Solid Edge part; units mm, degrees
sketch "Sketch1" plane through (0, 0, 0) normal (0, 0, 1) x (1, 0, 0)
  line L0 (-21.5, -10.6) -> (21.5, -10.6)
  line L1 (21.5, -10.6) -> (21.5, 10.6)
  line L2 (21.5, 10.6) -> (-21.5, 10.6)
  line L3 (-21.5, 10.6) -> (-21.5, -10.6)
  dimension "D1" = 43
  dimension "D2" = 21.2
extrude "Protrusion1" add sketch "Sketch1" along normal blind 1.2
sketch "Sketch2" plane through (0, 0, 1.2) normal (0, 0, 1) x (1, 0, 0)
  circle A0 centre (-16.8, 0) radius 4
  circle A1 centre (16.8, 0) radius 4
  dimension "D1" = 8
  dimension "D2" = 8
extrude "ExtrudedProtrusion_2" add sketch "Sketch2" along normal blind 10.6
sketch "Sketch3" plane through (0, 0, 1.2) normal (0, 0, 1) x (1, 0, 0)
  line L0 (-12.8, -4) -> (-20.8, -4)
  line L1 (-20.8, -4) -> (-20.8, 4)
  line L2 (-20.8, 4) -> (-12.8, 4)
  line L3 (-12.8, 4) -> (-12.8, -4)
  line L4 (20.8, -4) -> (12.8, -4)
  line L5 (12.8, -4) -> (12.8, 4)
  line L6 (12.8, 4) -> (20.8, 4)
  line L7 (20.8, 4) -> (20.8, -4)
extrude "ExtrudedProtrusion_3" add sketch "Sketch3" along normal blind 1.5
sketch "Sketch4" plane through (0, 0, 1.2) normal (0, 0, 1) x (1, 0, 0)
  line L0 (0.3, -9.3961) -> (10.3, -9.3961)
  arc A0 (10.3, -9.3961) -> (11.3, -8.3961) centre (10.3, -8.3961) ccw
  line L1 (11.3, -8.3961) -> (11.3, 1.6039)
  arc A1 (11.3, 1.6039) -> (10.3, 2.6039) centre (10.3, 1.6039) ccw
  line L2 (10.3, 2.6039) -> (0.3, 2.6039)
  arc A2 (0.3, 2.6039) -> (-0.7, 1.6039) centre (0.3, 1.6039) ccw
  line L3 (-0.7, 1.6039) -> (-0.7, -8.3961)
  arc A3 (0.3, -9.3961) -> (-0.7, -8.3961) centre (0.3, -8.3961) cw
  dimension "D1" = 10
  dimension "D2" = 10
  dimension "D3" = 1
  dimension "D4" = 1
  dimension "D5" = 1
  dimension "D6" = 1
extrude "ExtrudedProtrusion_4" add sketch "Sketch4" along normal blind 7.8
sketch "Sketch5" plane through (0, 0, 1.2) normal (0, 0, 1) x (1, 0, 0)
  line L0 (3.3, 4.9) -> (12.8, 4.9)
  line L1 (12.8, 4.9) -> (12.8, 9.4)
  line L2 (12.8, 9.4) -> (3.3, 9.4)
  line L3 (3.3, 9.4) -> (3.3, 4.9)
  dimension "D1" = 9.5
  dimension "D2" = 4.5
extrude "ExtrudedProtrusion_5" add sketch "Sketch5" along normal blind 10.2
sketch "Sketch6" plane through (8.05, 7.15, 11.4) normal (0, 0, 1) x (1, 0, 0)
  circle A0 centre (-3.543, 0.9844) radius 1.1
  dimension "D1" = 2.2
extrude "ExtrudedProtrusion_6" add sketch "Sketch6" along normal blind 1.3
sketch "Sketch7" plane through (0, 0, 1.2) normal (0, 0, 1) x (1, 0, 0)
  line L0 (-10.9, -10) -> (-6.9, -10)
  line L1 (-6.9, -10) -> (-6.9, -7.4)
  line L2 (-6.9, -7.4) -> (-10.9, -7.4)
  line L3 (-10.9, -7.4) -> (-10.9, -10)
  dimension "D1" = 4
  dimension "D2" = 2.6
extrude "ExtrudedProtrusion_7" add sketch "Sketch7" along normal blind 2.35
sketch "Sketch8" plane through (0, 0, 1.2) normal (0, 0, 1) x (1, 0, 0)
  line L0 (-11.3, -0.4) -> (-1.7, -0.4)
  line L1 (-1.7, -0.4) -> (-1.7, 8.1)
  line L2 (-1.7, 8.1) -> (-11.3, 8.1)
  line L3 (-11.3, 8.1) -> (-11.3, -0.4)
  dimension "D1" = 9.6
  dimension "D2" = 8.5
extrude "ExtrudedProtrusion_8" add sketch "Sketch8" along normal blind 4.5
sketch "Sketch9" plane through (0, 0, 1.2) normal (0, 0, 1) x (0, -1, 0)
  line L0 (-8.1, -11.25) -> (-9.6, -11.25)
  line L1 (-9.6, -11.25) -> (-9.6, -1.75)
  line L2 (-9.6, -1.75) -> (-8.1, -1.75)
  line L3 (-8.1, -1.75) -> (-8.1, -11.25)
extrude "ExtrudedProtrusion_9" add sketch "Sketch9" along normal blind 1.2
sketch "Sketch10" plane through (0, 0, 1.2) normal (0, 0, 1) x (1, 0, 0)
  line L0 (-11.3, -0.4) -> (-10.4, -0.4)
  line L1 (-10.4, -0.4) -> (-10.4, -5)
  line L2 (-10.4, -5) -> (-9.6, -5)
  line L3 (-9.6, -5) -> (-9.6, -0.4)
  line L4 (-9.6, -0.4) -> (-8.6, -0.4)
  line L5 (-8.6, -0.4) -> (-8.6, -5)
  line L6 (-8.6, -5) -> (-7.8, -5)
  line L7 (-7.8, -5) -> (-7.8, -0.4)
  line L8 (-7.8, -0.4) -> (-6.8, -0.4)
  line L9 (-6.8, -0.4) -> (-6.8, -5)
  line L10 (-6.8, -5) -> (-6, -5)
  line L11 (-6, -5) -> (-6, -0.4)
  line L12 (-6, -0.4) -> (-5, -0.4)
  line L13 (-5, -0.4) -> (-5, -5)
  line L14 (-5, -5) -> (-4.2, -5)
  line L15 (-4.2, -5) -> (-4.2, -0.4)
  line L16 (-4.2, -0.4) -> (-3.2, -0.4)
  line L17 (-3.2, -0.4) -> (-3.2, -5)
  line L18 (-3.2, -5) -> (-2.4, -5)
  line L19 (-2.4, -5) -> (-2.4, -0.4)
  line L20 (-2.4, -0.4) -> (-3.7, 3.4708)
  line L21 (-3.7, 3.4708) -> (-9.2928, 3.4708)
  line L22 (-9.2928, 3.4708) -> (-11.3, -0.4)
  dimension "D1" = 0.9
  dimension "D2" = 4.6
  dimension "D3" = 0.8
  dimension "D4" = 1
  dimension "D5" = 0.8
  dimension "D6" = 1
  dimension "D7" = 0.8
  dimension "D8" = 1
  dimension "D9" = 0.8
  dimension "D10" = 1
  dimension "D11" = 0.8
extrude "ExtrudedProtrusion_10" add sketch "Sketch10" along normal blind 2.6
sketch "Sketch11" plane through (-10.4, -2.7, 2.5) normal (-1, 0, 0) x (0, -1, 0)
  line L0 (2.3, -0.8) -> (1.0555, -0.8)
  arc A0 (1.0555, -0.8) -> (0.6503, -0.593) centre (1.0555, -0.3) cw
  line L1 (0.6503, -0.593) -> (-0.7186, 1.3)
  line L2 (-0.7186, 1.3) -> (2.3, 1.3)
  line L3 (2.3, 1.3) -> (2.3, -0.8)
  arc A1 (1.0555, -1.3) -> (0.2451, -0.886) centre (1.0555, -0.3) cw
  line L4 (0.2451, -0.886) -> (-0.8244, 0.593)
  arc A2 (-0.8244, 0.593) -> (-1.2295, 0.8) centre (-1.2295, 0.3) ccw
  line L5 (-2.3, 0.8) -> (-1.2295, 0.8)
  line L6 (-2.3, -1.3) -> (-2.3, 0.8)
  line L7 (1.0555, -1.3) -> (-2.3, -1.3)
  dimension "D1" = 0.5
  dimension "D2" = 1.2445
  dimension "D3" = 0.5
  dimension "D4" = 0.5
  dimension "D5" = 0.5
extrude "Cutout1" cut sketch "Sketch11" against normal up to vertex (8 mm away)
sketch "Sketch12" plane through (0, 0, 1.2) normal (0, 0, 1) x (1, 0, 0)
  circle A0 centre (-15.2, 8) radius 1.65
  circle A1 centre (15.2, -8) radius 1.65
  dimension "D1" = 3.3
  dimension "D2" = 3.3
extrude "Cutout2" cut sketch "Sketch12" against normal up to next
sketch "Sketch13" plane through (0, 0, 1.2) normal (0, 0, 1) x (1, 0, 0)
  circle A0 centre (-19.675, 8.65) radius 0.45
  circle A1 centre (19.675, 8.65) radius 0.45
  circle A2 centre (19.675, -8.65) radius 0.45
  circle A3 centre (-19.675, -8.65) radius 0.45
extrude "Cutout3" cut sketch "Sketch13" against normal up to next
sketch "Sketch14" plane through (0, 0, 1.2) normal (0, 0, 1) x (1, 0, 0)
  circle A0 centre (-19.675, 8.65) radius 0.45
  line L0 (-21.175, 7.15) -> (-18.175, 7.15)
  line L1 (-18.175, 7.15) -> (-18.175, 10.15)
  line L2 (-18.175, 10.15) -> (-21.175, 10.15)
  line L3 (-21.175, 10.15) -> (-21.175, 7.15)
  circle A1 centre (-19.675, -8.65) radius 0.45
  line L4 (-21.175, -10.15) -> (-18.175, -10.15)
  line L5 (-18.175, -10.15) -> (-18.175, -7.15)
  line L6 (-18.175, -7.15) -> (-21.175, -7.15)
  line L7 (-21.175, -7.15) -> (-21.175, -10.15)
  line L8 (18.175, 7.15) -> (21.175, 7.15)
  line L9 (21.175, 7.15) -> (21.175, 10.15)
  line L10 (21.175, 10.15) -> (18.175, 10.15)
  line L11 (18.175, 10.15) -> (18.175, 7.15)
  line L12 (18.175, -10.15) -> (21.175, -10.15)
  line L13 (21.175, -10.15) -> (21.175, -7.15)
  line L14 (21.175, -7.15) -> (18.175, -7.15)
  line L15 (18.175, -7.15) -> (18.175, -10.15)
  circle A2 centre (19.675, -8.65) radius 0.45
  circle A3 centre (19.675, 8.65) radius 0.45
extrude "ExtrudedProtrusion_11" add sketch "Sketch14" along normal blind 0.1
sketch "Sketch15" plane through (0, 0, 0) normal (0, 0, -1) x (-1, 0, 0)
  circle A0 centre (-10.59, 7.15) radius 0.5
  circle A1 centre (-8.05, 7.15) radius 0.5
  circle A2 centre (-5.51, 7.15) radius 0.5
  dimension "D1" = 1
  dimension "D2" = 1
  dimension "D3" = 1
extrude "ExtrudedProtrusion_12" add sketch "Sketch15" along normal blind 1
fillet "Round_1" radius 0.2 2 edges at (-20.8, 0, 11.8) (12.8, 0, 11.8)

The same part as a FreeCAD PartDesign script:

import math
import FreeCAD as App
import Part
import Sketcher

V = App.Vector
Q = App.Units.Quantity


def edges_at(feature, points):
    """Names of the edges that pass closest to the given points."""
    edges = feature.Shape.Edges
    near = lambda p: min(range(len(edges)), key=lambda i: edges[i].distToShape(Part.Vertex(*p))[0])
    return sorted({f"Edge{near(p) + 1}" for p in points})


def add_polygon(sketch, points):
    """Adds a closed chain of lines whose ends are joined by coincident constraints."""
    first, n = sketch.GeometryCount, len(points)
    for a, b in zip(points, points[1:] + points[:1]):
        sketch.addGeometry(Part.LineSegment(App.Vector(*a, 0), App.Vector(*b, 0)), False)
    for i in range(n):
        sketch.addConstraint(Sketcher.Constraint("Coincident", first + i, 2, first + (i + 1) % n, 1))

doc = App.newDocument("Part")
body = doc.addObject("PartDesign::Body", "Body")

sketch1 = body.newObject("Sketcher::SketchObject", "Sketch")
sketch1.AttachmentSupport = (doc.getObject("XY_Plane"), [""])
sketch1.MapMode = "FlatFace"
add_polygon(sketch1, [(-22, 11), (-22, -11), (22, -11), (22, 11)])
sketch1.addConstraint(Sketcher.Constraint("Vertical", 0))
sketch1.addConstraint(Sketcher.Constraint("Horizontal", 1))
sketch1.addConstraint(Sketcher.Constraint("Vertical", 2))
sketch1.addConstraint(Sketcher.Constraint("Horizontal", 3))
sketch1.addConstraint(Sketcher.Constraint("Symmetric", 0, 2, 2, 2, -1, 1))
sketch1.addConstraint(Sketcher.Constraint("DistanceX", 1, 1, 1, 2, Q("43 mm")))
sketch1.addConstraint(Sketcher.Constraint("DistanceY", 0, 2, 0, 1, Q("21.2 mm")))
pad1 = body.newObject("PartDesign::Pad", "Pad")
pad1.Profile = sketch1
pad1.Length = 1.2

sketch2 = body.newObject("Sketcher::SketchObject", "Sketch001")
sketch2.AttachmentSupport = (doc.getObject("XY_Plane"), [""])
sketch2.MapMode = "FlatFace"
sketch2.AttachmentOffset = App.Placement(V(0, 0, 1.2), App.Rotation())
sketch2.addGeometry(Part.Circle(V(-16.8, 0, 0), V(0, 0, 1), 4), False)
sketch2.addGeometry(Part.Circle(V(16.8, 0, 0), V(0, 0, 1), 4), False)
sketch2.addConstraint(Sketcher.Constraint("Equal", 0, 1))
sketch2.addConstraint(Sketcher.Constraint("Symmetric", 0, 3, 1, 3, -1, 1))
sketch2.addConstraint(Sketcher.Constraint("PointOnObject", 0, 3, -1))
sketch2.addConstraint(Sketcher.Constraint("Diameter", 0, Q("8 mm")))
sketch2.addConstraint(Sketcher.Constraint("DistanceX", 0, 3, -1, 1, Q("16.8 mm")))
pad2 = body.newObject("PartDesign::Pad", "Pad001")
pad2.Profile = sketch2
pad2.Length = 10.6

sketch3 = body.newObject("Sketcher::SketchObject", "Sketch002")
sketch3.AttachmentSupport = (doc.getObject("XY_Plane"), [""])
sketch3.MapMode = "FlatFace"
sketch3.AttachmentOffset = App.Placement(V(0, 0, 1.2), App.Rotation())
add_polygon(sketch3, [(-21, -4), (-13, -4), (-13, 4), (-21, 4)])
add_polygon(sketch3, [(13, -4), (21, -4), (21, 4), (13, 4)])
sketch3.addConstraint(Sketcher.Constraint("Horizontal", 0))
sketch3.addConstraint(Sketcher.Constraint("Vertical", 1))
sketch3.addConstraint(Sketcher.Constraint("Horizontal", 2))
sketch3.addConstraint(Sketcher.Constraint("Vertical", 3))
sketch3.addConstraint(Sketcher.Constraint("Horizontal", 4))
sketch3.addConstraint(Sketcher.Constraint("Vertical", 5))
sketch3.addConstraint(Sketcher.Constraint("Horizontal", 6))
sketch3.addConstraint(Sketcher.Constraint("Vertical", 7))
sketch3.addConstraint(Sketcher.Constraint("Symmetric", 2, 2, 4, 2, -1, 1))
sketch3.addConstraint(Sketcher.Constraint("Symmetric", 0, 2, 6, 2, -1, 1))
sketch3.addConstraint(Sketcher.Constraint("Horizontal", 3, 2, 4, 2))
sketch3.addConstraint(Sketcher.Constraint("Equal", 6, 1))
sketch3.addConstraint(Sketcher.Constraint("DistanceX", 0, 1, 0, 2, Q("8 mm")))
sketch3.addConstraint(Sketcher.Constraint("DistanceX", 0, 2, -1, 1, Q("12.8 mm")))
pad3 = body.newObject("PartDesign::Pad", "Pad002")
pad3.Profile = sketch3
pad3.Length = 1.5

sketch4 = body.newObject("Sketcher::SketchObject", "Sketch003")
sketch4.AttachmentSupport = (doc.getObject("XY_Plane"), [""])
sketch4.MapMode = "FlatFace"
sketch4.AttachmentOffset = App.Placement(V(0, 0, 1.2), App.Rotation())
sketch4.addGeometry(Part.ArcOfCircle(Part.Circle(V(0.3, -8.4, 0), V(0, 0, 1), 1), math.radians(180), math.radians(270)), False)
sketch4.addGeometry(Part.LineSegment(V(0.3, -9.4, 0), V(10.3, -9.4, 0)), False)
sketch4.addGeometry(Part.ArcOfCircle(Part.Circle(V(10.3, -8.4, 0), V(0, 0, 1), 1), math.radians(-90), math.radians(0)), False)
sketch4.addGeometry(Part.LineSegment(V(11.3, -8.4, 0), V(11.3, 1.6, 0)), False)
sketch4.addGeometry(Part.ArcOfCircle(Part.Circle(V(10.3, 1.6, 0), V(0, 0, 1), 1), math.radians(0), math.radians(90)), False)
sketch4.addGeometry(Part.LineSegment(V(10.3, 2.6, 0), V(0.3, 2.6, 0)), False)
sketch4.addGeometry(Part.ArcOfCircle(Part.Circle(V(0.3, 1.6, 0), V(0, 0, 1), 1), math.radians(90), math.radians(180)), False)
sketch4.addGeometry(Part.LineSegment(V(-0.7, 1.6, 0), V(-0.7, -8.4, 0)), False)
sketch4.addConstraint(Sketcher.Constraint("Tangent", 0, 2, 1, 1))
sketch4.addConstraint(Sketcher.Constraint("Tangent", 1, 2, 2, 1))
sketch4.addConstraint(Sketcher.Constraint("Tangent", 2, 2, 3, 1))
sketch4.addConstraint(Sketcher.Constraint("Tangent", 3, 2, 4, 1))
sketch4.addConstraint(Sketcher.Constraint("Tangent", 4, 2, 5, 1))
sketch4.addConstraint(Sketcher.Constraint("Tangent", 5, 2, 6, 1))
sketch4.addConstraint(Sketcher.Constraint("Tangent", 6, 2, 7, 1))
sketch4.addConstraint(Sketcher.Constraint("Tangent", 7, 2, 0, 1))
sketch4.addConstraint(Sketcher.Constraint("Horizontal", 1))
sketch4.addConstraint(Sketcher.Constraint("Vertical", 3))
sketch4.addConstraint(Sketcher.Constraint("Horizontal", 5))
sketch4.addConstraint(Sketcher.Constraint("Vertical", 7))
sketch4.addConstraint(Sketcher.Constraint("Equal", 0, 2))
sketch4.addConstraint(Sketcher.Constraint("Equal", 2, 4))
sketch4.addConstraint(Sketcher.Constraint("Equal", 4, 6))
sketch4.addConstraint(Sketcher.Constraint("Equal", 5, 3))
sketch4.addConstraint(Sketcher.Constraint("Radius", 0, Q("1 mm")))
sketch4.addConstraint(Sketcher.Constraint("DistanceX", 1, 1, 1, 2, Q("10 mm")))
sketch4.addConstraint(Sketcher.Constraint("DistanceX", -1, 1, 0, 3, Q("0.3 mm")))
sketch4.addConstraint(Sketcher.Constraint("DistanceY", 0, 3, -1, 1, Q("8.396 mm")))
pad4 = body.newObject("PartDesign::Pad", "Pad003")
pad4.Profile = sketch4
pad4.Length = 7.8

sketch5 = body.newObject("Sketcher::SketchObject", "Sketch004")
sketch5.AttachmentSupport = (doc.getObject("XY_Plane"), [""])
sketch5.MapMode = "FlatFace"
sketch5.AttachmentOffset = App.Placement(V(0, 0, 1.2), App.Rotation())
add_polygon(sketch5, [(3.3, 9.4), (3.3, 4.9), (12.8, 4.9), (12.8, 9.4)])
sketch5.addConstraint(Sketcher.Constraint("Vertical", 0))
sketch5.addConstraint(Sketcher.Constraint("Horizontal", 1))
sketch5.addConstraint(Sketcher.Constraint("Vertical", 2))
sketch5.addConstraint(Sketcher.Constraint("Horizontal", 3))
sketch5.addConstraint(Sketcher.Constraint("DistanceX", 1, 1, 1, 2, Q("9.5 mm")))
sketch5.addConstraint(Sketcher.Constraint("DistanceY", 0, 2, 0, 1, Q("4.5 mm")))
sketch5.addConstraint(Sketcher.Constraint("DistanceX", -1, 1, 0, 2, Q("3.3 mm")))
sketch5.addConstraint(Sketcher.Constraint("DistanceY", -1, 1, 0, 2, Q("4.9 mm")))
pad5 = body.newObject("PartDesign::Pad", "Pad004")
pad5.Profile = sketch5
pad5.Length = 10.2

sketch6 = body.newObject("Sketcher::SketchObject", "Sketch005")
sketch6.AttachmentSupport = (doc.getObject("XY_Plane"), [""])
sketch6.MapMode = "FlatFace"
sketch6.AttachmentOffset = App.Placement(V(0, 0, 11.4), App.Rotation())
sketch6.addGeometry(Part.Circle(V(4.5, 8.1, 0), V(0, 0, 1), 1.1), False)
sketch6.addConstraint(Sketcher.Constraint("Diameter", 0, Q("2.2 mm")))
sketch6.addConstraint(Sketcher.Constraint("DistanceX", -1, 1, 0, 3, Q("4.507 mm")))
sketch6.addConstraint(Sketcher.Constraint("DistanceY", -1, 1, 0, 3, Q("8.1344 mm")))
pad6 = body.newObject("PartDesign::Pad", "Pad005")
pad6.Profile = sketch6
pad6.Length = 1.3

sketch7 = body.newObject("Sketcher::SketchObject", "Sketch006")
sketch7.AttachmentSupport = (doc.getObject("XY_Plane"), [""])
sketch7.MapMode = "FlatFace"
sketch7.AttachmentOffset = App.Placement(V(0, 0, 1.2), App.Rotation())
add_polygon(sketch7, [(-10.9, -7.4), (-10.9, -10), (-6.9, -10), (-6.9, -7.4)])
sketch7.addConstraint(Sketcher.Constraint("Vertical", 0))
sketch7.addConstraint(Sketcher.Constraint("Horizontal", 1))
sketch7.addConstraint(Sketcher.Constraint("Vertical", 2))
sketch7.addConstraint(Sketcher.Constraint("Horizontal", 3))
sketch7.addConstraint(Sketcher.Constraint("DistanceX", 1, 1, 1, 2, Q("4 mm")))
sketch7.addConstraint(Sketcher.Constraint("DistanceY", 0, 2, 0, 1, Q("2.6 mm")))
sketch7.addConstraint(Sketcher.Constraint("DistanceY", 0, 2, -1, 1, Q("10 mm")))
sketch7.addConstraint(Sketcher.Constraint("DistanceX", 0, 2, -1, 1, Q("10.9 mm")))
pad7 = body.newObject("PartDesign::Pad", "Pad006")
pad7.Profile = sketch7
pad7.Length = 2.35

sketch8 = body.newObject("Sketcher::SketchObject", "Sketch007")
sketch8.AttachmentSupport = (doc.getObject("XY_Plane"), [""])
sketch8.MapMode = "FlatFace"
sketch8.AttachmentOffset = App.Placement(V(0, 0, 1.2), App.Rotation())
add_polygon(sketch8, [(-11, 8), (-11, 0), (-2, 0), (-2, 8)])
sketch8.addConstraint(Sketcher.Constraint("Vertical", 0))
sketch8.addConstraint(Sketcher.Constraint("Horizontal", 1))
sketch8.addConstraint(Sketcher.Constraint("Vertical", 2))
sketch8.addConstraint(Sketcher.Constraint("Horizontal", 3))
sketch8.addConstraint(Sketcher.Constraint("DistanceX", 1, 1, 1, 2, Q("9.6 mm")))
sketch8.addConstraint(Sketcher.Constraint("DistanceY", 0, 2, 0, 1, Q("8.5 mm")))
sketch8.addConstraint(Sketcher.Constraint("DistanceX", 0, 2, -1, 1, Q("11.3 mm")))
sketch8.addConstraint(Sketcher.Constraint("DistanceY", 0, 2, -1, 1, Q("0.4 mm")))
pad8 = body.newObject("PartDesign::Pad", "Pad007")
pad8.Profile = sketch8
pad8.Length = 4.5

sketch9 = body.newObject("Sketcher::SketchObject", "Sketch008")
sketch9.AttachmentSupport = (doc.getObject("XY_Plane"), [""])
sketch9.MapMode = "FlatFace"
sketch9.AttachmentOffset = App.Placement(V(0, 0, 1.2), App.Rotation())
add_polygon(sketch9, [(-11.2, 9.6), (-11.2, 8.1), (-1.8, 8.1), (-1.8, 9.6)])
sketch9.addConstraint(Sketcher.Constraint("Vertical", 0))
sketch9.addConstraint(Sketcher.Constraint("Horizontal", 1))
sketch9.addConstraint(Sketcher.Constraint("Vertical", 2))
sketch9.addConstraint(Sketcher.Constraint("Horizontal", 3))
sketch9.addConstraint(Sketcher.Constraint("DistanceX", 1, 1, 1, 2, Q("9.5 mm")))
sketch9.addConstraint(Sketcher.Constraint("DistanceY", 0, 2, 0, 1, Q("1.5 mm")))
sketch9.addConstraint(Sketcher.Constraint("DistanceY", -1, 1, 0, 2, Q("8.1 mm")))
sketch9.addConstraint(Sketcher.Constraint("DistanceX", 0, 2, -1, 1, Q("11.25 mm")))
pad9 = body.newObject("PartDesign::Pad", "Pad008")
pad9.Profile = sketch9
pad9.Length = 1.2

sketch10 = body.newObject("Sketcher::SketchObject", "Sketch009")
sketch10.AttachmentSupport = (doc.getObject("XY_Plane"), [""])
sketch10.MapMode = "FlatFace"
sketch10.AttachmentOffset = App.Placement(V(0, 0, 1.2), App.Rotation())
add_polygon(sketch10, [(-9.3, 3.5), (-11.3, -0.4), (-10.4, -0.4), (-10.4, -5), (-9.6, -5), (-9.6, -0.4), (-8.6, -0.4), (-8.6, -5), (-7.8, -5), (-7.8, -0.4), (-6.8, -0.4), (-6.8, -5), (-6, -5), (-6, -0.4), (-5, -0.4), (-5, -5), (-4.2, -5), (-4.2, -0.4), (-3.2, -0.4), (-3.2, -5), (-2.4, -5), (-2.4, -0.4), (-3.7, 3.5)])
sketch10.addConstraint(Sketcher.Constraint("Horizontal", 1))
sketch10.addConstraint(Sketcher.Constraint("Vertical", 2))
sketch10.addConstraint(Sketcher.Constraint("Horizontal", 3))
sketch10.addConstraint(Sketcher.Constraint("Vertical", 4))
sketch10.addConstraint(Sketcher.Constraint("Horizontal", 5))
sketch10.addConstraint(Sketcher.Constraint("Vertical", 6))
sketch10.addConstraint(Sketcher.Constraint("Horizontal", 7))
sketch10.addConstraint(Sketcher.Constraint("Vertical", 8))
sketch10.addConstraint(Sketcher.Constraint("Horizontal", 9))
sketch10.addConstraint(Sketcher.Constraint("Vertical", 10))
sketch10.addConstraint(Sketcher.Constraint("Horizontal", 11))
sketch10.addConstraint(Sketcher.Constraint("Vertical", 12))
sketch10.addConstraint(Sketcher.Constraint("Horizontal", 13))
sketch10.addConstraint(Sketcher.Constraint("Vertical", 14))
sketch10.addConstraint(Sketcher.Constraint("Horizontal", 15))
sketch10.addConstraint(Sketcher.Constraint("Vertical", 16))
sketch10.addConstraint(Sketcher.Constraint("Horizontal", 17))
sketch10.addConstraint(Sketcher.Constraint("Vertical", 18))
sketch10.addConstraint(Sketcher.Constraint("Horizontal", 19))
sketch10.addConstraint(Sketcher.Constraint("Vertical", 20))
sketch10.addConstraint(Sketcher.Constraint("Horizontal", 22))
sketch10.addConstraint(Sketcher.Constraint("Horizontal", 1, 2, 4, 2))
sketch10.addConstraint(Sketcher.Constraint("Horizontal", 3, 2, 6, 2))
sketch10.addConstraint(Sketcher.Constraint("Horizontal", 5, 2, 8, 2))
sketch10.addConstraint(Sketcher.Constraint("Horizontal", 7, 2, 10, 2))
sketch10.addConstraint(Sketcher.Constraint("Horizontal", 9, 2, 12, 2))
sketch10.addConstraint(Sketcher.Constraint("Horizontal", 11, 2, 14, 2))
sketch10.addConstraint(Sketcher.Constraint("Horizontal", 13, 2, 16, 2))
sketch10.addConstraint(Sketcher.Constraint("Horizontal", 15, 2, 18, 2))
sketch10.addConstraint(Sketcher.Constraint("Horizontal", 17, 2, 20, 2))
sketch10.addConstraint(Sketcher.Constraint("Equal", 3, 7))
sketch10.addConstraint(Sketcher.Constraint("Equal", 5, 9))
sketch10.addConstraint(Sketcher.Constraint("Equal", 7, 11))
sketch10.addConstraint(Sketcher.Constraint("Equal", 9, 13))
sketch10.addConstraint(Sketcher.Constraint("Equal", 11, 15))
sketch10.addConstraint(Sketcher.Constraint("Equal", 13, 17))
sketch10.addConstraint(Sketcher.Constraint("Equal", 15, 19))
sketch10.addConstraint(Sketcher.Constraint("DistanceX", 5, 1, 5, 2, Q("1 mm")))
sketch10.addConstraint(Sketcher.Constraint("DistanceX", 1, 1, 1, 2, Q("0.9 mm")))
sketch10.addConstraint(Sketcher.Constraint("DistanceX", 3, 1, 3, 2, Q("0.8 mm")))
sketch10.addConstraint(Sketcher.Constraint("DistanceY", 2, 2, 2, 1, Q("4.6 mm")))
sketch10.addConstraint(Sketcher.Constraint("DistanceY", 2, 2, -1, 1, Q("5 mm")))
sketch10.addConstraint(Sketcher.Constraint("DistanceX", 11, 2, -1, 1, Q("6 mm")))
sketch10.addConstraint(Sketcher.Constraint("DistanceX", 21, 2, -1, 1, Q("3.7 mm")))
sketch10.addConstraint(Sketcher.Constraint("Angle", 0, Q("-117.409 deg")))
sketch10.addConstraint(Sketcher.Constraint("DistanceX", 22, 2, 22, 1, Q("5.5928 mm")))
pad10 = body.newObject("PartDesign::Pad", "Pad009")
pad10.Profile = sketch10
pad10.Length = 2.6

sketch11 = body.newObject("Sketcher::SketchObject", "Sketch010")
sketch11.AttachmentSupport = (doc.getObject("YZ_Plane"), [""])
sketch11.MapMode = "FlatFace"
sketch11.AttachmentOffset = App.Placement(V(0, 0, -10.4), App.Rotation())
sketch11.addGeometry(Part.LineSegment(V(-3.76, 1.7, 0), V(-5, 1.7, 0)), False)
sketch11.addGeometry(Part.LineSegment(V(-5, 1.7, 0), V(-5, 3.8, 0)), False)
sketch11.addGeometry(Part.LineSegment(V(-5, 3.8, 0), V(-1.98, 3.8, 0)), False)
sketch11.addGeometry(Part.LineSegment(V(-1.98, 3.8, 0), V(-3.35, 1.91, 0)), False)
sketch11.addGeometry(Part.ArcOfCircle(Part.Circle(V(-3.76, 2.2, 0), V(0, 0, 1), 0.5), math.radians(-90), math.radians(-36)), False)
sketch11.addGeometry(Part.LineSegment(V(-0.4, 1.2, 0), V(-3.76, 1.2, 0)), False)
sketch11.addGeometry(Part.ArcOfCircle(Part.Circle(V(-3.76, 2.2, 0), V(0, 0, 1), 1), math.radians(-90), math.radians(-36)), False)
sketch11.addGeometry(Part.LineSegment(V(-2.95, 1.61, 0), V(-1.88, 3.09, 0)), False)
sketch11.addGeometry(Part.ArcOfCircle(Part.Circle(V(-1.47, 2.8, 0), V(0, 0, 1), 0.5), math.radians(90), math.radians(144)), False)
sketch11.addGeometry(Part.LineSegment(V(-1.47, 3.3, 0), V(-0.4, 3.3, 0)), False)
sketch11.addGeometry(Part.LineSegment(V(-0.4, 3.3, 0), V(-0.4, 1.2, 0)), False)
sketch11.addConstraint(Sketcher.Constraint("Coincident", 0, 2, 1, 1))
sketch11.addConstraint(Sketcher.Constraint("Coincident", 1, 2, 2, 1))
sketch11.addConstraint(Sketcher.Constraint("Coincident", 2, 2, 3, 1))
sketch11.addConstraint(Sketcher.Constraint("Tangent", 3, 2, 4, 2))
sketch11.addConstraint(Sketcher.Constraint("Tangent", 4, 1, 0, 1))
sketch11.addConstraint(Sketcher.Constraint("Tangent", 5, 2, 6, 1))
sketch11.addConstraint(Sketcher.Constraint("Tangent", 6, 2, 7, 1))
sketch11.addConstraint(Sketcher.Constraint("Tangent", 7, 2, 8, 2))
sketch11.addConstraint(Sketcher.Constraint("Tangent", 8, 1, 9, 1))
sketch11.addConstraint(Sketcher.Constraint("Coincident", 9, 2, 10, 1))
sketch11.addConstraint(Sketcher.Constraint("Coincident", 10, 2, 5, 1))
sketch11.addConstraint(Sketcher.Constraint("Horizontal", 0))
sketch11.addConstraint(Sketcher.Constraint("Vertical", 1))
sketch11.addConstraint(Sketcher.Constraint("Horizontal", 2))
sketch11.addConstraint(Sketcher.Constraint("Horizontal", 5))
sketch11.addConstraint(Sketcher.Constraint("Horizontal", 9))
sketch11.addConstraint(Sketcher.Constraint("Vertical", 10))
sketch11.addConstraint(Sketcher.Constraint("Coincident", 6, 3, 4, 3))
sketch11.addConstraint(Sketcher.Constraint("Equal", 4, 8))
sketch11.addConstraint(Sketcher.Constraint("Parallel", 3, 7))
sketch11.addConstraint(Sketcher.Constraint("Equal", 1, 10))
sketch11.addConstraint(Sketcher.Constraint("Radius", 6, Q("1 mm")))
sketch11.addConstraint(Sketcher.Constraint("Radius", 4, Q("0.5 mm")))
sketch11.addConstraint(Sketcher.Constraint("DistanceY", 1, 1, 1, 2, Q("2.1 mm")))
sketch11.addConstraint(Sketcher.Constraint("DistanceX", 0, 2, -1, 1, Q("5 mm")))
sketch11.addConstraint(Sketcher.Constraint("DistanceY", -1, 1, 4, 3, Q("2.2 mm")))
sketch11.addConstraint(Sketcher.Constraint("DistanceX", 9, 2, -1, 1, Q("0.4 mm")))
sketch11.addConstraint(Sketcher.Constraint("DistanceX", 4, 3, 7, 2, Q("1.88 mm")))
sketch11.addConstraint(Sketcher.Constraint("DistanceX", 0, 2, 0, 1, Q("1.2445 mm")))
pocket1 = body.newObject("PartDesign::Pocket", "Pocket")
pocket1.Profile = sketch11
pocket1.Length = 8
pocket1.Reversed = True

sketch12 = body.newObject("Sketcher::SketchObject", "Sketch011")
sketch12.AttachmentSupport = (doc.getObject("XY_Plane"), [""])
sketch12.MapMode = "FlatFace"
sketch12.AttachmentOffset = App.Placement(V(0, 0, 1.2), App.Rotation())
sketch12.addGeometry(Part.Circle(V(-15.2, 8, 0), V(0, 0, 1), 1.6), False)
sketch12.addGeometry(Part.Circle(V(15.2, -8, 0), V(0, 0, 1), 1.6), False)
sketch12.addConstraint(Sketcher.Constraint("Equal", 0, 1))
sketch12.addConstraint(Sketcher.Constraint("Symmetric", 0, 3, 1, 3, -1, 1))
sketch12.addConstraint(Sketcher.Constraint("Diameter", 0, Q("3.3 mm")))
sketch12.addConstraint(Sketcher.Constraint("DistanceY", -1, 1, 0, 3, Q("8 mm")))
sketch12.addConstraint(Sketcher.Constraint("DistanceX", 0, 3, -1, 1, Q("15.2 mm")))
pocket2 = body.newObject("PartDesign::Pocket", "Pocket001")
pocket2.Profile = sketch12
pocket2.Type = "UpToFirst"

sketch13 = body.newObject("Sketcher::SketchObject", "Sketch012")
sketch13.AttachmentSupport = (doc.getObject("XY_Plane"), [""])
sketch13.MapMode = "FlatFace"
sketch13.AttachmentOffset = App.Placement(V(0, 0, 1.2), App.Rotation())
sketch13.addGeometry(Part.Circle(V(-19.68, 8.65, 0), V(0, 0, 1), 0.45), False)
sketch13.addGeometry(Part.Circle(V(19.68, 8.65, 0), V(0, 0, 1), 0.45), False)
sketch13.addGeometry(Part.Circle(V(19.68, -8.65, 0), V(0, 0, 1), 0.45), False)
sketch13.addGeometry(Part.Circle(V(-19.68, -8.65, 0), V(0, 0, 1), 0.45), False)
sketch13.addConstraint(Sketcher.Constraint("Equal", 0, 1))
sketch13.addConstraint(Sketcher.Constraint("Equal", 1, 2))
sketch13.addConstraint(Sketcher.Constraint("Equal", 2, 3))
sketch13.addConstraint(Sketcher.Constraint("Symmetric", 0, 3, 2, 3, -1, 1))
sketch13.addConstraint(Sketcher.Constraint("Symmetric", 1, 3, 3, 3, -1, 1))
sketch13.addConstraint(Sketcher.Constraint("Symmetric", 0, 3, 1, 3, -2))
sketch13.addConstraint(Sketcher.Constraint("Diameter", 0, Q("0.9 mm")))
sketch13.addConstraint(Sketcher.Constraint("DistanceY", 2, 3, 1, 3, Q("17.3 mm")))
sketch13.addConstraint(Sketcher.Constraint("DistanceX", 0, 3, 1, 3, Q("39.35 mm")))
pocket3 = body.newObject("PartDesign::Pocket", "Pocket002")
pocket3.Profile = sketch13
pocket3.Length = 1.2

sketch14 = body.newObject("Sketcher::SketchObject", "Sketch013")
sketch14.AttachmentSupport = (doc.getObject("XY_Plane"), [""])
sketch14.MapMode = "FlatFace"
sketch14.AttachmentOffset = App.Placement(V(0, 0, 1.2), App.Rotation())
add_polygon(sketch14, [(-21.18, 10.15), (-21.18, 7.15), (-18.18, 7.15), (-18.18, 10.15)])
sketch14.addGeometry(Part.Circle(V(-19.68, 8.65, 0), V(0, 0, 1), 0.45), False)
add_polygon(sketch14, [(-21.18, -7.15), (-21.18, -10.15), (-18.18, -10.15), (-18.18, -7.15)])
sketch14.addGeometry(Part.Circle(V(-19.68, -8.65, 0), V(0, 0, 1), 0.45), False)
add_polygon(sketch14, [(18.18, 10.15), (18.18, 7.15), (21.18, 7.15), (21.18, 10.15)])
sketch14.addGeometry(Part.Circle(V(19.68, 8.65, 0), V(0, 0, 1), 0.45), False)
add_polygon(sketch14, [(18.18, -7.15), (18.18, -10.15), (21.18, -10.15), (21.18, -7.15)])
sketch14.addGeometry(Part.Circle(V(19.68, -8.65, 0), V(0, 0, 1), 0.45), False)
sketch14.addConstraint(Sketcher.Constraint("Vertical", 0))
sketch14.addConstraint(Sketcher.Constraint("Horizontal", 1))
sketch14.addConstraint(Sketcher.Constraint("Vertical", 2))
sketch14.addConstraint(Sketcher.Constraint("Horizontal", 3))
sketch14.addConstraint(Sketcher.Constraint("Vertical", 5))
sketch14.addConstraint(Sketcher.Constraint("Horizontal", 6))
sketch14.addConstraint(Sketcher.Constraint("Vertical", 7))
sketch14.addConstraint(Sketcher.Constraint("Horizontal", 8))
sketch14.addConstraint(Sketcher.Constraint("Vertical", 10))
sketch14.addConstraint(Sketcher.Constraint("Horizontal", 11))
sketch14.addConstraint(Sketcher.Constraint("Vertical", 12))
sketch14.addConstraint(Sketcher.Constraint("Horizontal", 13))
sketch14.addConstraint(Sketcher.Constraint("Vertical", 15))
sketch14.addConstraint(Sketcher.Constraint("Horizontal", 16))
sketch14.addConstraint(Sketcher.Constraint("Vertical", 17))
sketch14.addConstraint(Sketcher.Constraint("Horizontal", 18))
sketch14.addConstraint(Sketcher.Constraint("Equal", 4, 9))
sketch14.addConstraint(Sketcher.Constraint("Equal", 9, 14))
sketch14.addConstraint(Sketcher.Constraint("Equal", 14, 19))
sketch14.addConstraint(Sketcher.Constraint("Symmetric", 9, 3, 14, 3, -1, 1))
sketch14.addConstraint(Sketcher.Constraint("Symmetric", 4, 3, 19, 3, -1, 1))
sketch14.addConstraint(Sketcher.Constraint("Symmetric", 7, 2, 10, 2, -1, 1))
sketch14.addConstraint(Sketcher.Constraint("Symmetric", 5, 2, 12, 2, -1, 1))
sketch14.addConstraint(Sketcher.Constraint("Symmetric", 2, 2, 15, 2, -1, 1))
sketch14.addConstraint(Sketcher.Constraint("Symmetric", 0, 2, 17, 2, -1, 1))
sketch14.addConstraint(Sketcher.Constraint("Symmetric", 4, 3, 14, 3, -2))
sketch14.addConstraint(Sketcher.Constraint("Symmetric", 1, 2, 10, 2, -2))
sketch14.addConstraint(Sketcher.Constraint("Symmetric", 3, 2, 12, 2, -2))
sketch14.addConstraint(Sketcher.Constraint("Equal", 18, 0))
sketch14.addConstraint(Sketcher.Constraint("Diameter", 4, Q("0.9 mm")))
sketch14.addConstraint(Sketcher.Constraint("DistanceX", 1, 1, 1, 2, Q("3 mm")))
sketch14.addConstraint(Sketcher.Constraint("DistanceY", 9, 3, 4, 3, Q("17.3 mm")))
sketch14.addConstraint(Sketcher.Constraint("DistanceX", 0, 2, 4, 3, Q("1.5 mm")))
sketch14.addConstraint(Sketcher.Constraint("DistanceY", 0, 2, 4, 3, Q("1.5 mm")))
sketch14.addConstraint(Sketcher.Constraint("DistanceX", 4, 3, 14, 3, Q("39.35 mm")))
pad11 = body.newObject("PartDesign::Pad", "Pad010")
pad11.Profile = sketch14
pad11.Length = 0.1

sketch15 = body.newObject("Sketcher::SketchObject", "Sketch014")
sketch15.AttachmentSupport = (doc.getObject("XY_Plane"), [""])
sketch15.MapMode = "FlatFace"
sketch15.addGeometry(Part.Circle(V(10.6, 7.2, 0), V(0, 0, 1), 0.5), False)
sketch15.addGeometry(Part.Circle(V(8.1, 7.2, 0), V(0, 0, 1), 0.5), False)
sketch15.addGeometry(Part.Circle(V(5.5, 7.2, 0), V(0, 0, 1), 0.5), False)
sketch15.addConstraint(Sketcher.Constraint("Equal", 0, 1))
sketch15.addConstraint(Sketcher.Constraint("Equal", 1, 2))
sketch15.addConstraint(Sketcher.Constraint("Horizontal", 0, 3, 1, 3))
sketch15.addConstraint(Sketcher.Constraint("Horizontal", 1, 3, 2, 3))
sketch15.addConstraint(Sketcher.Constraint("Diameter", 0, Q("1 mm")))
sketch15.addConstraint(Sketcher.Constraint("DistanceX", -1, 1, 0, 3, Q("10.59 mm")))
sketch15.addConstraint(Sketcher.Constraint("DistanceY", -1, 1, 0, 3, Q("7.15 mm")))
sketch15.addConstraint(Sketcher.Constraint("DistanceX", -1, 1, 1, 3, Q("8.05 mm")))
sketch15.addConstraint(Sketcher.Constraint("DistanceX", -1, 1, 2, 3, Q("5.51 mm")))
pad12 = body.newObject("PartDesign::Pad", "Pad011")
pad12.Profile = sketch15
pad12.Length = 1
pad12.Reversed = True
doc.recompute()

fillet = body.newObject("PartDesign::Fillet", "Fillet")
fillet.Base = (pad12, edges_at(pad12, [(-20.8, 0, 11.8), (12.8, 0, 11.8)]))
fillet.Radius = 0.2

doc.recompute()
